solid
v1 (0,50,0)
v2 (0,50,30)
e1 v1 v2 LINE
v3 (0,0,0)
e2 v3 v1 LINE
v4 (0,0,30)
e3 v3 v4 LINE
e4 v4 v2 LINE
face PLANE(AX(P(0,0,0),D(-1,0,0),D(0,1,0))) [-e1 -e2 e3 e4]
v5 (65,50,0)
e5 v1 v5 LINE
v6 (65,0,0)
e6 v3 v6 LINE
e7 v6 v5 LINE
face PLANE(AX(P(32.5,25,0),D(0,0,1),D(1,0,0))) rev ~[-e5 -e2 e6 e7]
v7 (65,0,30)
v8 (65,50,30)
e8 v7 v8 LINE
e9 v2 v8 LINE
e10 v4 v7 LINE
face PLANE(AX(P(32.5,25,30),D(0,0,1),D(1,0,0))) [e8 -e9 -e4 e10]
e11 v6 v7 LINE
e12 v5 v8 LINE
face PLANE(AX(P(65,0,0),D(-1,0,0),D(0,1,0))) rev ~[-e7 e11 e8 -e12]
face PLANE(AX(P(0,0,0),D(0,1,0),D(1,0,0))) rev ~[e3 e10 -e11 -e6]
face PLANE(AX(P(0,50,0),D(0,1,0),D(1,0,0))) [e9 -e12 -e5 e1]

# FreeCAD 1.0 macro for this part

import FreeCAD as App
import Part
import Sketcher
Q = App.Units.Quantity

doc = App.newDocument("Part")
body = doc.addObject("PartDesign::Body", "Body")

sketch1 = doc.addObject("Sketcher::SketchObject", "Sketch")
body.addObject(sketch1)
sketch1.AttachmentSupport = (doc.XY_Plane, [""])
sketch1.MapMode = "FlatFace"
sketch1.addGeometry([
    Part.LineSegment(App.Vector(0, 50, 0), App.Vector(0, 0, 0)),
    Part.LineSegment(App.Vector(0, 0, 0), App.Vector(65, 0, 0)),
    Part.LineSegment(App.Vector(65, 0, 0), App.Vector(65, 50, 0)),
    Part.LineSegment(App.Vector(65, 50, 0), App.Vector(0, 50, 0)),
], False)
sketch1.addConstraint([
    Sketcher.Constraint("Coincident", 0, 2, 1, 1),
    Sketcher.Constraint("Coincident", 1, 2, 2, 1),
    Sketcher.Constraint("Coincident", 2, 2, 3, 1),
    Sketcher.Constraint("Coincident", 3, 2, 0, 1),
    Sketcher.Constraint("Vertical", 0),
    Sketcher.Constraint("Horizontal", 1),
    Sketcher.Constraint("Vertical", 2),
    Sketcher.Constraint("Horizontal", 3),
    Sketcher.Constraint("Coincident", 0, 2, -1, 1),
    Sketcher.Constraint("DistanceX", 1, 1, 1, 2, Q("65 mm")),
    Sketcher.Constraint("DistanceY", 0, 2, 0, 1, Q("50 mm")),
])
pad1 = doc.addObject("PartDesign::Pad", "Pad")
body.addObject(pad1)
pad1.Profile = sketch1
pad1.Length = 30

doc.recompute()
